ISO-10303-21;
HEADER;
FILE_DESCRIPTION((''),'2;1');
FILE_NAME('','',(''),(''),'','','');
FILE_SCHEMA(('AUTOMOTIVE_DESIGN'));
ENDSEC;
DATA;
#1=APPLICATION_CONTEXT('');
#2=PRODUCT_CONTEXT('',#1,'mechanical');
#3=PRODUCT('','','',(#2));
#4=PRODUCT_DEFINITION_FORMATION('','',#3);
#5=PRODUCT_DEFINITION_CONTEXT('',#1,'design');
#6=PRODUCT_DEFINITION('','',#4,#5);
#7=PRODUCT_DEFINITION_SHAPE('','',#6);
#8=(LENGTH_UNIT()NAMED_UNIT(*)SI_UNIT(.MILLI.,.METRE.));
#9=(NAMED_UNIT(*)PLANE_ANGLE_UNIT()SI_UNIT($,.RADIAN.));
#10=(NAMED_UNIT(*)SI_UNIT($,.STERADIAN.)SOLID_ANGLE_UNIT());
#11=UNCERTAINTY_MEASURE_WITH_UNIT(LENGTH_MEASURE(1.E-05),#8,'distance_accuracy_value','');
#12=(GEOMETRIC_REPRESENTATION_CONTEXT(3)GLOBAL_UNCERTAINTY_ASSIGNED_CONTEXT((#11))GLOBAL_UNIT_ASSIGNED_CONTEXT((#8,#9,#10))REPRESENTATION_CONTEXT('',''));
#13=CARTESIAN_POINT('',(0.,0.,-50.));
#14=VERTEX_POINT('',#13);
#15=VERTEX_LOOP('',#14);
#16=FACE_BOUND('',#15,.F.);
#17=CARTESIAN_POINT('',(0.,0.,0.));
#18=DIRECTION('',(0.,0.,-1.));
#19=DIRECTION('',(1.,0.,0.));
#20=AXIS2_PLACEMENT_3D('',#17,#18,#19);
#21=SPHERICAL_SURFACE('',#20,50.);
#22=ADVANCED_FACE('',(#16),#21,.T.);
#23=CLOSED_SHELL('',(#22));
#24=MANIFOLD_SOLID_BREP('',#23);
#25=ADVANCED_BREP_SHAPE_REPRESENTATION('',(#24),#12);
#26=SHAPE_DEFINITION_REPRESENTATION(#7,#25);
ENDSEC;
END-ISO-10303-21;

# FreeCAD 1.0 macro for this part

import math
import FreeCAD as App
import Part
import Sketcher
from FreeCAD import Vector
Q = App.Units.Quantity

doc = App.newDocument("Part")
body = doc.addObject("PartDesign::Body", "Body")

# Sketch on XZ plane
sketch1 = body.newObject("Sketcher::SketchObject", "Sketch")
sketch1.AttachmentSupport = (doc.getObject("XZ_Plane"), [""])
sketch1.MapMode = "FlatFace"
sketch1.addGeometry(Part.LineSegment(Vector(0, -50, 0), Vector(0, 50, 0)), False)
sketch1.addGeometry(Part.ArcOfCircle(Part.Circle(Vector(0, 0, 0), Vector(0, 0, 1), 50), math.radians(-90), math.radians(90)), False)
sketch1.addConstraint(Sketcher.Constraint("Coincident", 0, 1, 1, 1))
sketch1.addConstraint(Sketcher.Constraint("Coincident", 1, 2, 0, 2))
sketch1.addConstraint(Sketcher.Constraint("Vertical", 0))
sketch1.addConstraint(Sketcher.Constraint("Coincident", 1, 3, -1, 1))
sketch1.addConstraint(Sketcher.Constraint("PointOnObject", 0, 1, -2))
sketch1.addConstraint(Sketcher.Constraint("Radius", 1, Q("1.9685 in")))
revolution = body.newObject("PartDesign::Revolution", "Revolution")
revolution.Profile = sketch1
revolution.ReferenceAxis = (sketch1, ["V_Axis"])
revolution.Angle = 360

doc.recompute()
